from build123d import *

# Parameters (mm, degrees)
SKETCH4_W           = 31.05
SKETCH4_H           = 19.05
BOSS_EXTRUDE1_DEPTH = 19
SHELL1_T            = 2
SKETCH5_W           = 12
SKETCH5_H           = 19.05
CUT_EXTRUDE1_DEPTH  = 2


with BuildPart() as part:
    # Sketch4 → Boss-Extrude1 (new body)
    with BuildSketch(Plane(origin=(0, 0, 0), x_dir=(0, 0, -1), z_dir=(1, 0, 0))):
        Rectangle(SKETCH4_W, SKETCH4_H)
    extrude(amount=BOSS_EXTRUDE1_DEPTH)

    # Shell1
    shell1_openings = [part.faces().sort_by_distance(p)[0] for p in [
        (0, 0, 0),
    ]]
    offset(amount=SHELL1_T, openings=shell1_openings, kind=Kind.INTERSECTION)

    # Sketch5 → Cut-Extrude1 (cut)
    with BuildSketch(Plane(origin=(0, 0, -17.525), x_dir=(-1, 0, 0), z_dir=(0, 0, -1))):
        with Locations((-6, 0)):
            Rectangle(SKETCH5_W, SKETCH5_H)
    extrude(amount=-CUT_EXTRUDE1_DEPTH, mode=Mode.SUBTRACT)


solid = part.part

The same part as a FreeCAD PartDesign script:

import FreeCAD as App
import Part
import Sketcher

V = App.Vector


def faces_at(feature, points):
    """Names of the faces that lie closest to the given points."""
    faces = feature.Shape.Faces
    near = lambda p: min(range(len(faces)), key=lambda i: faces[i].distToShape(Part.Vertex(*p))[0])
    return sorted({f"Face{near(p) + 1}" for p in points})

doc = App.newDocument("Part")
body = doc.addObject("PartDesign::Body", "Body")

# Sketch on YZ plane
sketch1 = body.newObject("Sketcher::SketchObject", "Sketch")
sketch1.AttachmentSupport = (doc.getObject("YZ_Plane"), [""])
sketch1.MapMode = "FlatFace"
sketch1.addGeometry(Part.LineSegment(V(10, 16, 0), V(-10, 16, 0)), False)
sketch1.addGeometry(Part.LineSegment(V(-10, 16, 0), V(-10, -16, 0)), False)
sketch1.addGeometry(Part.LineSegment(V(-10, -16, 0), V(10, -16, 0)), False)
sketch1.addGeometry(Part.LineSegment(V(10, -16, 0), V(10, 16, 0)), False)
sketch1.addConstraint(Sketcher.Constraint("Coincident", 0, 2, 1, 1))
sketch1.addConstraint(Sketcher.Constraint("Coincident", 1, 2, 2, 1))
sketch1.addConstraint(Sketcher.Constraint("Coincident", 2, 2, 3, 1))
sketch1.addConstraint(Sketcher.Constraint("Coincident", 3, 2, 0, 1))
sketch1.addConstraint(Sketcher.Constraint("Horizontal", 0))
sketch1.addConstraint(Sketcher.Constraint("Vertical", 1))
sketch1.addConstraint(Sketcher.Constraint("Horizontal", 2))
sketch1.addConstraint(Sketcher.Constraint("Vertical", 3))
sketch1.addConstraint(Sketcher.Constraint("Symmetric", 0, 2, 2, 2, -1, 1))
sketch1.addConstraint(Sketcher.Constraint("DistanceX", 0, 2, 0, 1, 19.05))
sketch1.addConstraint(Sketcher.Constraint("DistanceY", 1, 2, 1, 1, 31.05))
pad1 = body.newObject("PartDesign::Pad", "Pad")
pad1.Profile = sketch1
pad1.Length = 19
doc.recompute()

thickness = body.newObject("PartDesign::Thickness", "Thickness")
thickness.Base = (pad1, faces_at(pad1, [(0, 0, 0)]))
thickness.Value = 2
thickness.Reversed = False
thickness.Join = "Intersection"

# Sketch on XY plane
sketch2 = body.newObject("Sketcher::SketchObject", "Sketch001")
sketch2.AttachmentSupport = (doc.getObject("XY_Plane"), [""])
sketch2.MapMode = "FlatFace"
sketch2.AttachmentOffset = App.Placement(V(0, 0, -17.525), App.Rotation())
sketch2.addGeometry(Part.LineSegment(V(12, 10, 0), V(12, -10, 0)), False)
sketch2.addGeometry(Part.LineSegment(V(12, -10, 0), V(0, -10, 0)), False)
sketch2.addGeometry(Part.LineSegment(V(0, -10, 0), V(0, 10, 0)), False)
sketch2.addGeometry(Part.LineSegment(V(0, 10, 0), V(12, 10, 0)), False)
sketch2.addConstraint(Sketcher.Constraint("Coincident", 0, 2, 1, 1))
sketch2.addConstraint(Sketcher.Constraint("Coincident", 1, 2, 2, 1))
sketch2.addConstraint(Sketcher.Constraint("Coincident", 2, 2, 3, 1))
sketch2.addConstraint(Sketcher.Constraint("Coincident", 3, 2, 0, 1))
sketch2.addConstraint(Sketcher.Constraint("Vertical", 0))
sketch2.addConstraint(Sketcher.Constraint("Horizontal", 1))
sketch2.addConstraint(Sketcher.Constraint("Vertical", 2))
sketch2.addConstraint(Sketcher.Constraint("Horizontal", 3))
sketch2.addConstraint(Sketcher.Constraint("Symmetric", 1, 2, 2, 2, -1, 1))
sketch2.addConstraint(Sketcher.Constraint("DistanceX", 1, 2, 1, 1, 12.0))
sketch2.addConstraint(Sketcher.Constraint("DistanceY", 0, 2, 0, 1, 19.05))
pocket1 = body.newObject("PartDesign::Pocket", "Pocket")
pocket1.Profile = sketch2
pocket1.Length = 2
pocket1.Reversed = True

doc.recompute()
